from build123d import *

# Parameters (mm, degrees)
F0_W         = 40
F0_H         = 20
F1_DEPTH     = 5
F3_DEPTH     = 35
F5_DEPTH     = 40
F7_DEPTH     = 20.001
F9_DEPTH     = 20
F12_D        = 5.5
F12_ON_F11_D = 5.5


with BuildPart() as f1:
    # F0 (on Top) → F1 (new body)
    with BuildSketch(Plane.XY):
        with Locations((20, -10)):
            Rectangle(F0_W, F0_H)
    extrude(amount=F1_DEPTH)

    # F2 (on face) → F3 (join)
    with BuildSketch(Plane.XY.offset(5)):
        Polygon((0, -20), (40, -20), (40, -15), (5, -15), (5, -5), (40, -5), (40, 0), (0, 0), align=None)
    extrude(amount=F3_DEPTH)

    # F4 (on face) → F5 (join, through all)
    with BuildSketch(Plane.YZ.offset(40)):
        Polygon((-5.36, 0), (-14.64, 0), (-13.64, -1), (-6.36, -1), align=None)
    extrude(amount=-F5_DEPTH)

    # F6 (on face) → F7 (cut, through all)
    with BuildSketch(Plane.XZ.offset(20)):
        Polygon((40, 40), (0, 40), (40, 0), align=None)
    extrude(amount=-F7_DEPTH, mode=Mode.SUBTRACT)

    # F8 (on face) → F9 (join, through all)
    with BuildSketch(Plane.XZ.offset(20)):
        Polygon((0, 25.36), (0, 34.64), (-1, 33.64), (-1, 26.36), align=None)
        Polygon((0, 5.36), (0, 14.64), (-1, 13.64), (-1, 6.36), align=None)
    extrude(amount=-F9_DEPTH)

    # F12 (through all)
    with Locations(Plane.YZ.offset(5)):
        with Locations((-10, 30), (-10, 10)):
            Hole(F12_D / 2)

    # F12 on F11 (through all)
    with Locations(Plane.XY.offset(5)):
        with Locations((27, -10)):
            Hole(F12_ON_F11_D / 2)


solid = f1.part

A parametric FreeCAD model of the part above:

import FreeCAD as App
import Part
import Sketcher

V = App.Vector

doc = App.newDocument("Part")
body = doc.addObject("PartDesign::Body", "Body")

sketch1 = body.newObject("Sketcher::SketchObject", "Sketch")
sketch1.AttachmentSupport = (doc.getObject("XY_Plane"), [""])
sketch1.MapMode = "FlatFace"
sketch1.addGeometry([
    Part.LineSegment(V(0, 0, 0), V(0, -20, 0)),
    Part.LineSegment(V(0, -20, 0), V(40, -20, 0)),
    Part.LineSegment(V(40, -20, 0), V(40, 0, 0)),
    Part.LineSegment(V(40, 0, 0), V(0, 0, 0)),
], False)
sketch1.addConstraint([
    Sketcher.Constraint("Coincident", 0, 2, 1, 1),
    Sketcher.Constraint("Coincident", 1, 2, 2, 1),
    Sketcher.Constraint("Coincident", 2, 2, 3, 1),
    Sketcher.Constraint("Coincident", 3, 2, 0, 1),
    Sketcher.Constraint("Vertical", 0),
    Sketcher.Constraint("Horizontal", 1),
    Sketcher.Constraint("Vertical", 2),
    Sketcher.Constraint("Horizontal", 3),
    Sketcher.Constraint("Coincident", 3, 2, -1, 1),
    Sketcher.Constraint("DistanceX", 1, 1, 1, 2, 40.0),
    Sketcher.Constraint("DistanceY", 0, 2, 0, 1, 20.0),
])
pad1 = body.newObject("PartDesign::Pad", "Pad")
pad1.Profile = sketch1
pad1.Length = 5

sketch2 = body.newObject("Sketcher::SketchObject", "Sketch001")
sketch2.AttachmentSupport = (doc.getObject("XY_Plane"), [""])
sketch2.MapMode = "FlatFace"
sketch2.AttachmentOffset = App.Placement(V(0, 0, 5), App.Rotation())
sketch2.addGeometry([
    Part.LineSegment(V(0, -20, 0), V(40, -20, 0)),
    Part.LineSegment(V(40, -20, 0), V(40, -15, 0)),
    Part.LineSegment(V(40, -15, 0), V(5, -15, 0)),
    Part.LineSegment(V(5, -15, 0), V(5, -5, 0)),
    Part.LineSegment(V(5, -5, 0), V(40, -5, 0)),
    Part.LineSegment(V(40, -5, 0), V(40, 0, 0)),
    Part.LineSegment(V(40, 0, 0), V(0, 0, 0)),
    Part.LineSegment(V(0, 0, 0), V(0, -20, 0)),
], False)
sketch2.addConstraint([
    Sketcher.Constraint("Coincident", 0, 2, 1, 1),
    Sketcher.Constraint("Coincident", 1, 2, 2, 1),
    Sketcher.Constraint("Coincident", 2, 2, 3, 1),
    Sketcher.Constraint("Coincident", 3, 2, 4, 1),
    Sketcher.Constraint("Coincident", 4, 2, 5, 1),
    Sketcher.Constraint("Coincident", 5, 2, 6, 1),
    Sketcher.Constraint("Coincident", 6, 2, 7, 1),
    Sketcher.Constraint("Coincident", 7, 2, 0, 1),
    Sketcher.Constraint("Horizontal", 0),
    Sketcher.Constraint("Vertical", 1),
    Sketcher.Constraint("Horizontal", 2),
    Sketcher.Constraint("Vertical", 3),
    Sketcher.Constraint("Horizontal", 4),
    Sketcher.Constraint("Vertical", 5),
    Sketcher.Constraint("Horizontal", 6),
    Sketcher.Constraint("Vertical", 7),
    Sketcher.Constraint("Coincident", 6, 2, -1, 1),
    Sketcher.Constraint("Vertical", 1, 2, 4, 2),
    Sketcher.Constraint("Equal", 1, 5),
    Sketcher.Constraint("DistanceX", 0, 1, 0, 2, 40.0),
    Sketcher.Constraint("DistanceX", 2, 2, 2, 1, 35.0),
    Sketcher.Constraint("DistanceY", 1, 1, 1, 2, 5.0),
    Sketcher.Constraint("DistanceY", 3, 1, 3, 2, 10.0),
])
pad2 = body.newObject("PartDesign::Pad", "Pad001")
pad2.Profile = sketch2
pad2.Length = 35

sketch3 = body.newObject("Sketcher::SketchObject", "Sketch002")
sketch3.AttachmentSupport = (doc.getObject("YZ_Plane"), [""])
sketch3.MapMode = "FlatFace"
sketch3.AttachmentOffset = App.Placement(V(0, 0, 40), App.Rotation())
sketch3.addGeometry([
    Part.LineSegment(V(-5.36, 0, 0), V(-14.64, 0, 0)),
    Part.LineSegment(V(-14.64, 0, 0), V(-13.64, -1, 0)),
    Part.LineSegment(V(-13.64, -1, 0), V(-6.36, -1, 0)),
    Part.LineSegment(V(-6.36, -1, 0), V(-5.36, 0, 0)),
], False)
sketch3.addConstraint([
    Sketcher.Constraint("Coincident", 0, 2, 1, 1),
    Sketcher.Constraint("Coincident", 1, 2, 2, 1),
    Sketcher.Constraint("Coincident", 2, 2, 3, 1),
    Sketcher.Constraint("Coincident", 3, 2, 0, 1),
    Sketcher.Constraint("Horizontal", 0),
    Sketcher.Constraint("Horizontal", 2),
    Sketcher.Constraint("PointOnObject", 0, 2, -1),
    Sketcher.Constraint("Perpendicular", 1, 3),
    Sketcher.Constraint("Equal", 1, 3),
    Sketcher.Constraint("DistanceY", 1, 2, -1, 1, 1.0),
    Sketcher.Constraint("DistanceX", 0, 2, 0, 1, 9.28),
    Sketcher.Constraint("DistanceX", 0, 2, -1, 1, 14.64),
])
pad3 = body.newObject("PartDesign::Pad", "Pad002")
pad3.Profile = sketch3
pad3.Length = 40
pad3.Reversed = True

sketch4 = body.newObject("Sketcher::SketchObject", "Sketch003")
sketch4.AttachmentSupport = (doc.getObject("XZ_Plane"), [""])
sketch4.MapMode = "FlatFace"
sketch4.AttachmentOffset = App.Placement(V(0, 0, 20), App.Rotation())
sketch4.addGeometry([
    Part.LineSegment(V(40, 40, 0), V(0, 40, 0)),
    Part.LineSegment(V(0, 40, 0), V(40, 0, 0)),
    Part.LineSegment(V(40, 0, 0), V(40, 40, 0)),
], False)
sketch4.addConstraint([
    Sketcher.Constraint("Coincident", 0, 2, 1, 1),
    Sketcher.Constraint("Coincident", 1, 2, 2, 1),
    Sketcher.Constraint("Coincident", 2, 2, 0, 1),
    Sketcher.Constraint("Horizontal", 0),
    Sketcher.Constraint("Vertical", 2),
    Sketcher.Constraint("PointOnObject", 0, 2, -2),
    Sketcher.Constraint("PointOnObject", 1, 2, -1),
    Sketcher.Constraint("Equal", 0, 2),
    Sketcher.Constraint("DistanceX", 0, 2, 0, 1, 40.0),
])
pocket1 = body.newObject("PartDesign::Pocket", "Pocket")
pocket1.Profile = sketch4
pocket1.Type = "ThroughAll"

sketch5 = body.newObject("Sketcher::SketchObject", "Sketch004")
sketch5.AttachmentSupport = (doc.getObject("XZ_Plane"), [""])
sketch5.MapMode = "FlatFace"
sketch5.AttachmentOffset = App.Placement(V(0, 0, 20), App.Rotation())
sketch5.addGeometry([
    Part.LineSegment(V(0, 25.36, 0), V(0, 34.64, 0)),
    Part.LineSegment(V(0, 34.64, 0), V(-1, 33.64, 0)),
    Part.LineSegment(V(-1, 33.64, 0), V(-1, 26.36, 0)),
    Part.LineSegment(V(-1, 26.36, 0), V(0, 25.36, 0)),
    Part.LineSegment(V(0, 5.36, 0), V(0, 14.64, 0)),
    Part.LineSegment(V(0, 14.64, 0), V(-1, 13.64, 0)),
    Part.LineSegment(V(-1, 13.64, 0), V(-1, 6.36, 0)),
    Part.LineSegment(V(-1, 6.36, 0), V(0, 5.36, 0)),
], False)
sketch5.addConstraint([
    Sketcher.Constraint("Coincident", 0, 2, 1, 1),
    Sketcher.Constraint("Coincident", 1, 2, 2, 1),
    Sketcher.Constraint("Coincident", 2, 2, 3, 1),
    Sketcher.Constraint("Coincident", 3, 2, 0, 1),
    Sketcher.Constraint("Coincident", 4, 2, 5, 1),
    Sketcher.Constraint("Coincident", 5, 2, 6, 1),
    Sketcher.Constraint("Coincident", 6, 2, 7, 1),
    Sketcher.Constraint("Coincident", 7, 2, 4, 1),
    Sketcher.Constraint("Vertical", 0),
    Sketcher.Constraint("Vertical", 2),
    Sketcher.Constraint("Vertical", 4),
    Sketcher.Constraint("Vertical", 6),
    Sketcher.Constraint("PointOnObject", 0, 2, -2),
    Sketcher.Constraint("PointOnObject", 4, 2, -2),
    Sketcher.Constraint("Perpendicular", 1, 3),
    Sketcher.Constraint("Perpendicular", 3, 5),
    Sketcher.Constraint("Perpendicular", 5, 7),
    Sketcher.Constraint("Vertical", 2, 2, 5, 2),
    Sketcher.Constraint("Equal", 0, 4),
    Sketcher.Constraint("Equal", 1, 3),
    Sketcher.Constraint("DistanceX", 1, 2, -1, 1, 1.0),
    Sketcher.Constraint("DistanceY", 4, 2, 1, 2, 19.0),
    Sketcher.Constraint("DistanceY", 0, 1, 0, 2, 9.28),
    Sketcher.Constraint("DistanceY", -1, 1, 0, 2, 34.64),
])
pad4 = body.newObject("PartDesign::Pad", "Pad003")
pad4.Profile = sketch5
pad4.Length = 20
pad4.Reversed = True

sketch6 = body.newObject("Sketcher::SketchObject", "Sketch005")
sketch6.AttachmentSupport = (doc.getObject("YZ_Plane"), [""])
sketch6.MapMode = "FlatFace"
sketch6.AttachmentOffset = App.Placement(V(0, 0, 5), App.Rotation())
sketch6.addGeometry([
    Part.Circle(V(-10, 30, 0), V(0, 0, 1), 2.75),
    Part.Circle(V(-10, 10, 0), V(0, 0, 1), 2.75),
], False)
sketch6.addConstraint([
    Sketcher.Constraint("Equal", 0, 1),
    Sketcher.Constraint("Vertical", 0, 3, 1, 3),
    Sketcher.Constraint("Diameter", 0, 5.5),
    Sketcher.Constraint("DistanceX", 0, 3, -1, 1, 10.0),
    Sketcher.Constraint("DistanceY", -1, 1, 0, 3, 30.0),
    Sketcher.Constraint("DistanceY", -1, 1, 1, 3, 10.0),
])
doc.recompute()
hole = body.newObject("PartDesign::Hole", "Hole")
hole.Profile = sketch6
hole.ThreadType = "None"
hole.Diameter = 5.5
hole.DepthType = "ThroughAll"

sketch7 = body.newObject("Sketcher::SketchObject", "Sketch006")
sketch7.AttachmentSupport = (doc.getObject("XY_Plane"), [""])
sketch7.MapMode = "FlatFace"
sketch7.AttachmentOffset = App.Placement(V(0, 0, 5), App.Rotation())
sketch7.addGeometry(Part.Circle(V(27, -10, 0), V(0, 0, 1), 2.75), False)
sketch7.addConstraint([
    Sketcher.Constraint("Diameter", 0, 5.5),
    Sketcher.Constraint("DistanceX", -1, 1, 0, 3, 27.0),
    Sketcher.Constraint("DistanceY", 0, 3, -1, 1, 10.0),
])
doc.recompute()
hole2 = body.newObject("PartDesign::Hole", "Hole001")
hole2.Profile = sketch7
hole2.ThreadType = "None"
hole2.Diameter = 5.5
hole2.DepthType = "ThroughAll"

doc.recompute()
